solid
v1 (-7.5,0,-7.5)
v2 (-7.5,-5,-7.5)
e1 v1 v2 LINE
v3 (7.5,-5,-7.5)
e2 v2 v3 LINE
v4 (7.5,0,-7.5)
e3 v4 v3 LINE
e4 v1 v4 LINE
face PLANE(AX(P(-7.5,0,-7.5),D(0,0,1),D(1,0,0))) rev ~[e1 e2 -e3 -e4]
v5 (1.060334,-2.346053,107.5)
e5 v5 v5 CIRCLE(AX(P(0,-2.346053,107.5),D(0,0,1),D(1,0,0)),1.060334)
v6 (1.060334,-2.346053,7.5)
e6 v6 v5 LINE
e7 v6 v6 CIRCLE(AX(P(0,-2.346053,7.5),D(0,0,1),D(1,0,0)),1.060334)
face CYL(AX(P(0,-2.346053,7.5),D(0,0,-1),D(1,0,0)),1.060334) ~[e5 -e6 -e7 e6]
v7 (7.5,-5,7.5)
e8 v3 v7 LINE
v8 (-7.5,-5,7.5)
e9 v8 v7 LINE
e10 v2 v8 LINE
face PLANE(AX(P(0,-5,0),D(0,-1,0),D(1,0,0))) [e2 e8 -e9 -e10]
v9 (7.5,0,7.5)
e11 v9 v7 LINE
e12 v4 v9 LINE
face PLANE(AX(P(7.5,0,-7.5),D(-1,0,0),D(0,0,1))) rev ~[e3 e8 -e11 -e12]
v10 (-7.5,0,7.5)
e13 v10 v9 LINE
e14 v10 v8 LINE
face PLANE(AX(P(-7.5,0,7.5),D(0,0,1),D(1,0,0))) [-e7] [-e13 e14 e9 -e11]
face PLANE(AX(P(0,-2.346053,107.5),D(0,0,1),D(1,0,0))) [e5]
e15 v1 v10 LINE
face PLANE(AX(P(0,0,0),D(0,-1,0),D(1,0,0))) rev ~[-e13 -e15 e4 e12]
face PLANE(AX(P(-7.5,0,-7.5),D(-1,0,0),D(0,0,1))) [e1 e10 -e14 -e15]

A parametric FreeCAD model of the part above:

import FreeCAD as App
import Part
import Sketcher

V = App.Vector

doc = App.newDocument("Part")
params = doc.addObject("Spreadsheet::Sheet", "Params")
for row, (alias, value) in enumerate([
    ("sketch1_width", "15 mm"),
    ("pad1_length", "5 mm"),
    ("pad2_length", "100 mm"),
], start=1):
    params.set(f"A{row}", alias)
    params.set(f"B{row}", "=" + value)
    params.setAlias(f"B{row}", alias)

body = doc.addObject("PartDesign::Body", "Body")

# Sketch on XZ plane
sketch1 = doc.addObject("Sketcher::SketchObject", "Sketch")
body.addObject(sketch1)
sketch1.AttachmentSupport = (doc.XZ_Plane, [""])
sketch1.MapMode = "FlatFace"
sketch1.addGeometry([
    Part.LineSegment(V(-8, 8, 0), V(-8, -8, 0)),
    Part.LineSegment(V(-8, -8, 0), V(8, -8, 0)),
    Part.LineSegment(V(8, -8, 0), V(8, 8, 0)),
    Part.LineSegment(V(8, 8, 0), V(-8, 8, 0)),
], False)
sketch1.addConstraint([
    Sketcher.Constraint("Coincident", 0, 2, 1, 1),
    Sketcher.Constraint("Coincident", 1, 2, 2, 1),
    Sketcher.Constraint("Coincident", 2, 2, 3, 1),
    Sketcher.Constraint("Coincident", 3, 2, 0, 1),
    Sketcher.Constraint("Vertical", 0),
    Sketcher.Constraint("Horizontal", 1),
    Sketcher.Constraint("Vertical", 2),
    Sketcher.Constraint("Horizontal", 3),
    Sketcher.Constraint("Symmetric", 0, 2, 2, 2, -1, 1),
    Sketcher.Constraint("Equal", 3, 0),
    Sketcher.Constraint("DistanceX", 1, 1, 1, 2, 15.0),
])
sketch1.setExpression("Constraints[10]", "Params.sketch1_width")
pad1 = doc.addObject("PartDesign::Pad", "Pad")
body.addObject(pad1)
pad1.Profile = sketch1
pad1.setExpression("Length", "Params.pad1_length")

# Sketch on XY plane
sketch2 = doc.addObject("Sketcher::SketchObject", "Sketch001")
body.addObject(sketch2)
sketch2.AttachmentSupport = (doc.XY_Plane, [""])
sketch2.MapMode = "FlatFace"
sketch2.AttachmentOffset = App.Placement(V(0, 0, 7.5), App.Rotation())
sketch2.addGeometry(Part.Circle(V(0, -2.3, 0), V(0, 0, 1), 1.1), False)
sketch2.addConstraint([
    Sketcher.Constraint("PointOnObject", 0, 3, -2),
    Sketcher.Constraint("Diameter", 0, 2.120668),
    Sketcher.Constraint("DistanceY", 0, 3, -1, 1, 2.346053),
])
pad2 = doc.addObject("PartDesign::Pad", "Pad001")
body.addObject(pad2)
pad2.Profile = sketch2
pad2.setExpression("Length", "Params.pad2_length")

doc.recompute()
